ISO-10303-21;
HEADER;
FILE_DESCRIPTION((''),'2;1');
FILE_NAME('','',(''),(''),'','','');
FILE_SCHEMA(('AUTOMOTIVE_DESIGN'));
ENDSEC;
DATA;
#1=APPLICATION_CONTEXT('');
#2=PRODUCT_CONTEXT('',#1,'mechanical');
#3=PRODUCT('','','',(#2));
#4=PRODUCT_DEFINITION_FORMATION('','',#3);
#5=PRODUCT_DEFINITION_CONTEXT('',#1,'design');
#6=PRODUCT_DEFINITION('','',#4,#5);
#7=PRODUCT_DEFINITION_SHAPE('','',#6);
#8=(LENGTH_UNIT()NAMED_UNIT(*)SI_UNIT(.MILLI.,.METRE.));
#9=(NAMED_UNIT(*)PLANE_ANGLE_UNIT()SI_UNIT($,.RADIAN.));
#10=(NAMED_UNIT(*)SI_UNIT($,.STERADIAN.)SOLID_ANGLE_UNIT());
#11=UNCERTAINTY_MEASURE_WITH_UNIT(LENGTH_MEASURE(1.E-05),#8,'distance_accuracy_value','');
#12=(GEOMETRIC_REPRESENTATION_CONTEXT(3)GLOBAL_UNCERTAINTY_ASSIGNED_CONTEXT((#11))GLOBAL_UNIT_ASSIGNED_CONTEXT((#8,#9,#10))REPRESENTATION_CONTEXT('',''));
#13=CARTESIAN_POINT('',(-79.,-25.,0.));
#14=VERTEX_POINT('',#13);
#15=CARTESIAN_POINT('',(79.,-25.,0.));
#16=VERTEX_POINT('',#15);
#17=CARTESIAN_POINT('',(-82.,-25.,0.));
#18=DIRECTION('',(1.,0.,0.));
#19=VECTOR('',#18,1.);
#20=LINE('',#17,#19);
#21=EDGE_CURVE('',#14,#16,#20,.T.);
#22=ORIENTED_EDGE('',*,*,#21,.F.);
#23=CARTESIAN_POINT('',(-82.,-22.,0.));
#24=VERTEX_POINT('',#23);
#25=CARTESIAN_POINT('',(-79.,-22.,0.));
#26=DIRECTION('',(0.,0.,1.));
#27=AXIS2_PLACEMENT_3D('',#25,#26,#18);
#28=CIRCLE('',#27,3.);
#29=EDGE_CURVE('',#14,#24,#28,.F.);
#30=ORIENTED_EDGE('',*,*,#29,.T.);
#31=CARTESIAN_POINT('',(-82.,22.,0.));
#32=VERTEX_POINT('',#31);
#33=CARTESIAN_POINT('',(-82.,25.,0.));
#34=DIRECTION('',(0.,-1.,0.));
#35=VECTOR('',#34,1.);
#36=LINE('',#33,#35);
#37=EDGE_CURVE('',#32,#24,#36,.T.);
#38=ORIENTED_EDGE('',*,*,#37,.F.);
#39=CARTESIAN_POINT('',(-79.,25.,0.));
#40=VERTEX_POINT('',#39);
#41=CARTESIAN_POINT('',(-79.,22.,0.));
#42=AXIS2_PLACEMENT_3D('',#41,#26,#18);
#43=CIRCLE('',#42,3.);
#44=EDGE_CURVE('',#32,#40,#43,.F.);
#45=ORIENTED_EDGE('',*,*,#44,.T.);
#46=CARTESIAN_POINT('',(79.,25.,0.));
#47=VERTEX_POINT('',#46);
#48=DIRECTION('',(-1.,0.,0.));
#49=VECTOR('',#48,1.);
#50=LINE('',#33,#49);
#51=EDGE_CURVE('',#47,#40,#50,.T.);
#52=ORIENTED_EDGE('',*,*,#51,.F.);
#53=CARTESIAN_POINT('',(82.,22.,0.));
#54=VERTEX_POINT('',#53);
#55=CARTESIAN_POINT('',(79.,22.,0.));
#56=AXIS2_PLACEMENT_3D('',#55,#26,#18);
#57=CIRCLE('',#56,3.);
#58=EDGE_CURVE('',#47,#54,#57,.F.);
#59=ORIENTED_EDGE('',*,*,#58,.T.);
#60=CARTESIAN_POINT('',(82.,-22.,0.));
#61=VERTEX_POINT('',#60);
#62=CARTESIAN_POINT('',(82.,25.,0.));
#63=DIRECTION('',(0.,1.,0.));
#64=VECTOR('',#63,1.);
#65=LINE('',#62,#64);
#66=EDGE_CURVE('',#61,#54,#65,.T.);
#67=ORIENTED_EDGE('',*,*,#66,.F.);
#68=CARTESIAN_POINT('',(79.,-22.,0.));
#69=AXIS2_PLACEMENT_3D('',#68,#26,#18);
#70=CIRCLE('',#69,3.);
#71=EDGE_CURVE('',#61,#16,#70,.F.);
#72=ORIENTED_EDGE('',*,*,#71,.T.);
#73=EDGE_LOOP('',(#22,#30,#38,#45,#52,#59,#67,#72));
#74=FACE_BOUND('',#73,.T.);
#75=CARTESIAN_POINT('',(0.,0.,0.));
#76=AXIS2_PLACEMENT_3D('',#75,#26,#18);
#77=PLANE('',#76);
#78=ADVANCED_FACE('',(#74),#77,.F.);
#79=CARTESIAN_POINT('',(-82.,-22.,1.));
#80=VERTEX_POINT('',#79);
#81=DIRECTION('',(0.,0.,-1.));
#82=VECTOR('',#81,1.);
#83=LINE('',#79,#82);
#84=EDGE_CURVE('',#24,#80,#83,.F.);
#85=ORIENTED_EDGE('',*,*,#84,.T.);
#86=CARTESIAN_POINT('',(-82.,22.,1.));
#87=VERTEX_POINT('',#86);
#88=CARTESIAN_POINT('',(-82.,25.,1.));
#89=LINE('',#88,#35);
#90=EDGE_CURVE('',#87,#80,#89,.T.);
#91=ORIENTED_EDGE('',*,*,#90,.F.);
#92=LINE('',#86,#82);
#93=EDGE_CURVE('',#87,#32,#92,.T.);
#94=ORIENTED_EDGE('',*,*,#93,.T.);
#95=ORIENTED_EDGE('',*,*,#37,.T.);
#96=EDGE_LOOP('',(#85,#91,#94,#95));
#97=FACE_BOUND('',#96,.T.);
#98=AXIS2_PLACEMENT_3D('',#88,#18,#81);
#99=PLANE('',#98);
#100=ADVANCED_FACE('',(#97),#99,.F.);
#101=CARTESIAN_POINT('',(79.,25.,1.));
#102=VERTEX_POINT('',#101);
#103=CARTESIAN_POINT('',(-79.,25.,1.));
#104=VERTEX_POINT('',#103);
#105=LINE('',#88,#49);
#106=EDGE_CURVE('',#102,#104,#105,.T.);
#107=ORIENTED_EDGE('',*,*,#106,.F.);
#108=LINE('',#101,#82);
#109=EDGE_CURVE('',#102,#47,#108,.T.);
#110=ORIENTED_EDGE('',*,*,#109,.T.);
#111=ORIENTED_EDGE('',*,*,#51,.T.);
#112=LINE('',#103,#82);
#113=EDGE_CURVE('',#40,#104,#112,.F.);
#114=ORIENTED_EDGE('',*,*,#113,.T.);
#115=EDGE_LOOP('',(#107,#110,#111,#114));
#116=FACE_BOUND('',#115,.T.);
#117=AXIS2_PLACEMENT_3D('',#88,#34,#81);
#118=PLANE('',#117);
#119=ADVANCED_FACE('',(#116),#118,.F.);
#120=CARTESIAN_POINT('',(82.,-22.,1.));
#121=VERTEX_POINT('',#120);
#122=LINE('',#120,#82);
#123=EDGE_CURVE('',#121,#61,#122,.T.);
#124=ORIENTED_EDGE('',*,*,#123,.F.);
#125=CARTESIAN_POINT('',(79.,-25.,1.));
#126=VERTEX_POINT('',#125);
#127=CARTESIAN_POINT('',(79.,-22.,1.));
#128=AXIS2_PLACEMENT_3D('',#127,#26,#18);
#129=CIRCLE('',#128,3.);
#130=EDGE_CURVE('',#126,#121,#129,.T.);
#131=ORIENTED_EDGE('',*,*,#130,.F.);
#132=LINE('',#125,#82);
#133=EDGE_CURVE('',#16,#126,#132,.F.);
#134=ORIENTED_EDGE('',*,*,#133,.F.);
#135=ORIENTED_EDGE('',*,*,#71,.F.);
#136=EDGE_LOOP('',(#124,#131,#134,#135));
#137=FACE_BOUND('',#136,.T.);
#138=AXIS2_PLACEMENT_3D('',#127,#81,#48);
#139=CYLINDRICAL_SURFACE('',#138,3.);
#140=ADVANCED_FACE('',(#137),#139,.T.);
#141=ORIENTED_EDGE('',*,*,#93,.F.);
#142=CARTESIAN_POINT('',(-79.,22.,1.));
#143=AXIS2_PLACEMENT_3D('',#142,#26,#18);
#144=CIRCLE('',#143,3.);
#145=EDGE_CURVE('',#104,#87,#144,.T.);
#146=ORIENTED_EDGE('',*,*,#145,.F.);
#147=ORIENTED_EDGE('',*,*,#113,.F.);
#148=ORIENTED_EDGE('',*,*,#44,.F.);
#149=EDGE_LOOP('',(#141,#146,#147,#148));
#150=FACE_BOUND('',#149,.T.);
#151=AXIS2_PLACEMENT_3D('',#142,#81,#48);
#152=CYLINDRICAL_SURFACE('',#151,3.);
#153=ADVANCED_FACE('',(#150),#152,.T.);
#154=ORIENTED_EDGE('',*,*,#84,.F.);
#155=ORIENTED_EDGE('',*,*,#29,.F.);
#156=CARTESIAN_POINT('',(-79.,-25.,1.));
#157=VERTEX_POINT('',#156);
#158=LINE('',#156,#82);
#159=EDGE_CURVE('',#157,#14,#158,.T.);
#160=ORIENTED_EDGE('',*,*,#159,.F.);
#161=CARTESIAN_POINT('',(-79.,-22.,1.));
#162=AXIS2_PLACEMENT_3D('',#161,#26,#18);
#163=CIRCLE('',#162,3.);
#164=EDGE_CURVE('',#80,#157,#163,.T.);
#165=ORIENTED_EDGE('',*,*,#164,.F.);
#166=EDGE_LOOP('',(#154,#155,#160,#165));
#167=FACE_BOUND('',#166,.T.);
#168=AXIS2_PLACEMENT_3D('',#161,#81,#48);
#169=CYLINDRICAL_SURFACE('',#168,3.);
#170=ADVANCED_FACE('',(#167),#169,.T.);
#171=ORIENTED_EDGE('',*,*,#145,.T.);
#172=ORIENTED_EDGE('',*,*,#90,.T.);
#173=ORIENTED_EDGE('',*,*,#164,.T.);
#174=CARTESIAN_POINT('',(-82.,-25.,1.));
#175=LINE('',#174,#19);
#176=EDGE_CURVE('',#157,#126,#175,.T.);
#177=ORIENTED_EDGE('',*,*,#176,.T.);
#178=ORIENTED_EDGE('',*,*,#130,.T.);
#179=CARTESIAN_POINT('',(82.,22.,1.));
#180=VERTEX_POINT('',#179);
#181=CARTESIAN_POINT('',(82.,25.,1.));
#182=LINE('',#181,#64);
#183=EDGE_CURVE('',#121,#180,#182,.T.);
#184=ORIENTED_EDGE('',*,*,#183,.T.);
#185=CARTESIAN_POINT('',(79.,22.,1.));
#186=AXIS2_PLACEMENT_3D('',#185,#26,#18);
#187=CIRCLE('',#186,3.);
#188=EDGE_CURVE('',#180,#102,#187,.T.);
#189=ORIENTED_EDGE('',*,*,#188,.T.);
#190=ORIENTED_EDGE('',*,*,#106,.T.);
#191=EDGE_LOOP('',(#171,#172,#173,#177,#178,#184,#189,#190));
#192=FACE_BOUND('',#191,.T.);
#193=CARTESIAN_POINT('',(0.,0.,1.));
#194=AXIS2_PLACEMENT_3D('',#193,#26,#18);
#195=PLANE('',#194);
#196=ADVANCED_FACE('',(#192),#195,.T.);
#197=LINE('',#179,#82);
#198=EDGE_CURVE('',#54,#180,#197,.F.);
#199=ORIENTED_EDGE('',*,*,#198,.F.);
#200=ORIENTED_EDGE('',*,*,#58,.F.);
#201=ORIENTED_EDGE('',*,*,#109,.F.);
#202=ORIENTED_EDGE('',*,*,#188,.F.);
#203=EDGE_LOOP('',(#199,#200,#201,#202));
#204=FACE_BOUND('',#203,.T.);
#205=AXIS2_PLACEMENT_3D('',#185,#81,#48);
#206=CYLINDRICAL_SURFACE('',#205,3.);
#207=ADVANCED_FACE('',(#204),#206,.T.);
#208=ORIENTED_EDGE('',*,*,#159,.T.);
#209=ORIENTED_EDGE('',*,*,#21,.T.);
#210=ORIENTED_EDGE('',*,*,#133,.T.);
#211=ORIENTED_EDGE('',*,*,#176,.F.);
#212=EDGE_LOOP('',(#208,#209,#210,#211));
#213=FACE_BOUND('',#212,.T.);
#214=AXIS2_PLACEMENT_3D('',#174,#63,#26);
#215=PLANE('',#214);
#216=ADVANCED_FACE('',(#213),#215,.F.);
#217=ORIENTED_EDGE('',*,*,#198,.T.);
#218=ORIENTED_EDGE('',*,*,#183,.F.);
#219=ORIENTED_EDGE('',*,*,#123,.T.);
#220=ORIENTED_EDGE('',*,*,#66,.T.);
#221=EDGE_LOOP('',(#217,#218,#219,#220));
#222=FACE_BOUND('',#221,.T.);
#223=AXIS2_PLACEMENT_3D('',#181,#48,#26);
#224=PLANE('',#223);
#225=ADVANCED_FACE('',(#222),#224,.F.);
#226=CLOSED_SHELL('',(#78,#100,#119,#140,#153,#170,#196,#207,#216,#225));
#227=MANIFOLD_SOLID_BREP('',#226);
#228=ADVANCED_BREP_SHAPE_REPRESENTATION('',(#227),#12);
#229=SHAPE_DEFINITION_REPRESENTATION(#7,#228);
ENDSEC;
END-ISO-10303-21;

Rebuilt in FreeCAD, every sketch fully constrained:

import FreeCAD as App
import Part
import Sketcher
from FreeCAD import Vector
Q = App.Units.Quantity


def edges_at(feature, points):
    """Names of the edges that pass closest to the given points."""
    edges = feature.Shape.Edges
    near = lambda p: min(range(len(edges)), key=lambda i: edges[i].distToShape(Part.Vertex(*p))[0])
    return sorted({f"Edge{near(p) + 1}" for p in points})


def add_polygon(sketch, points):
    """Adds a closed chain of lines whose ends are joined by coincident constraints."""
    first, n = sketch.GeometryCount, len(points)
    for a, b in zip(points, points[1:] + points[:1]):
        sketch.addGeometry(Part.LineSegment(App.Vector(*a, 0), App.Vector(*b, 0)), False)
    for i in range(n):
        sketch.addConstraint(Sketcher.Constraint("Coincident", first + i, 2, first + (i + 1) % n, 1))

doc = App.newDocument("Part")
body = doc.addObject("PartDesign::Body", "Body")

sketch1 = body.newObject("Sketcher::SketchObject", "Sketch")
sketch1.AttachmentSupport = (doc.getObject("XY_Plane"), [""])
sketch1.MapMode = "FlatFace"
add_polygon(sketch1, [(-82, 25), (-82, -25), (82, -25), (82, 25)])
sketch1.addConstraint(Sketcher.Constraint("Vertical", 0))
sketch1.addConstraint(Sketcher.Constraint("Horizontal", 1))
sketch1.addConstraint(Sketcher.Constraint("Vertical", 2))
sketch1.addConstraint(Sketcher.Constraint("Horizontal", 3))
sketch1.addConstraint(Sketcher.Constraint("Symmetric", 0, 2, 2, 2, -1, 1))
sketch1.addConstraint(Sketcher.Constraint("DistanceX", 1, 1, 1, 2, Q("164 mm")))
sketch1.addConstraint(Sketcher.Constraint("DistanceY", 0, 2, 0, 1, Q("50 mm")))
pad1 = body.newObject("PartDesign::Pad", "Pad")
pad1.Profile = sketch1
pad1.Length = 1
doc.recompute()

fillet = body.newObject("PartDesign::Fillet", "Fillet")
fillet.Base = (pad1, edges_at(pad1, [
    (82, -25, 0.5),
    (-82, -25, 0.5),
    (-82, 25, 0.5),
    (82, 25, 0.5),
]))
fillet.Radius = 3

doc.recompute()
